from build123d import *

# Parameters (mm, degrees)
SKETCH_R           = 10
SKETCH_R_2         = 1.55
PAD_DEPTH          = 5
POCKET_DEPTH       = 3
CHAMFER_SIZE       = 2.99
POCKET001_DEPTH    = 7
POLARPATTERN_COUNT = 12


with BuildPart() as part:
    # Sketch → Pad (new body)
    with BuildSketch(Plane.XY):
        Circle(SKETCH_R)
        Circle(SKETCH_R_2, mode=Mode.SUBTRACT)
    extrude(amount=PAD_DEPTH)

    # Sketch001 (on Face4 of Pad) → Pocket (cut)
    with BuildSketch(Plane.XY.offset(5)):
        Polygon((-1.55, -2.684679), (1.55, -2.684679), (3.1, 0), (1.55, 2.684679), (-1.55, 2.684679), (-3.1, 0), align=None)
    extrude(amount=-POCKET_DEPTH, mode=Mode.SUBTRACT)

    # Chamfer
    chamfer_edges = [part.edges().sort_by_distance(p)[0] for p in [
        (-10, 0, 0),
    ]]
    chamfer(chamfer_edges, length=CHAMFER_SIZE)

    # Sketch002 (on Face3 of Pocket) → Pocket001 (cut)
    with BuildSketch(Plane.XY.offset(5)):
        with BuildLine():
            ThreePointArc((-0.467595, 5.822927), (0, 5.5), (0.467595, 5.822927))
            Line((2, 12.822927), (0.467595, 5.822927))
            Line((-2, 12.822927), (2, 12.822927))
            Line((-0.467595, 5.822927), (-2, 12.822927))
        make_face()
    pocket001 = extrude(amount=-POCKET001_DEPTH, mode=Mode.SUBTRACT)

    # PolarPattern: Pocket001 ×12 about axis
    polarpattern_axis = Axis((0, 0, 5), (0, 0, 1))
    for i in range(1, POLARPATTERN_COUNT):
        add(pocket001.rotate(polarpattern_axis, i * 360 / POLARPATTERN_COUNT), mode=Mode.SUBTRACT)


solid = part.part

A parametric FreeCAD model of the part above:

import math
import FreeCAD as App
import Part
import Sketcher
Q = App.Units.Quantity


def edges_at(feature, points):
    """Names of the edges that pass closest to the given points."""
    edges = feature.Shape.Edges
    near = lambda p: min(range(len(edges)), key=lambda i: edges[i].distToShape(Part.Vertex(*p))[0])
    return sorted({f"Edge{near(p) + 1}" for p in points})


def add_polygon(sketch, points):
    """Adds a closed chain of lines whose ends are joined by coincident constraints."""
    first, n = sketch.GeometryCount, len(points)
    for a, b in zip(points, points[1:] + points[:1]):
        sketch.addGeometry(Part.LineSegment(App.Vector(*a, 0), App.Vector(*b, 0)), False)
    for i in range(n):
        sketch.addConstraint(Sketcher.Constraint("Coincident", first + i, 2, first + (i + 1) % n, 1))

doc = App.newDocument("Part")
params = doc.addObject("Spreadsheet::Sheet", "Params")
for row, (alias, value) in enumerate([
    ("sketch1_diameter", "20 mm"),
    ("sketch1_diameter2", "3.1 mm"),
    ("pad1_length", "5 mm"),
    ("sketch2_width", "3.1 mm"),
    ("sketch2_length", "3.1 mm"),
    ("pocket1_length", "3 mm"),
    ("chamfer_size", "2.99 mm"),
    ("sketch3_radius", "0.5 mm"),
    ("sketch3_width", "4 mm"),
    ("pocket2_length", "7 mm"),
], start=1):
    params.set(f"A{row}", alias)
    params.set(f"B{row}", "=" + value)
    params.setAlias(f"B{row}", alias)

body = doc.addObject("PartDesign::Body", "Body")

# Sketch on XY plane
sketch1 = body.newObject("Sketcher::SketchObject", "Sketch")
sketch1.AttachmentSupport = (doc.getObject("XY_Plane"), [""])
sketch1.MapMode = "FlatFace"
sketch1.addGeometry([
    Part.Circle(App.Vector(0, 0, 0), App.Vector(0, 0, 1), 10),
    Part.Circle(App.Vector(0, 0, 0), App.Vector(0, 0, 1), 1.55),
], False)
sketch1.addConstraint([
    Sketcher.Constraint("Coincident", 0, 3, -1, 1),
    Sketcher.Constraint("Coincident", 1, 3, -1, 1),
    Sketcher.Constraint("Diameter", 0, Q("20 mm")),
    Sketcher.Constraint("Diameter", 1, Q("3.1 mm")),
])
sketch1.setExpression("Constraints[2]", "Params.sketch1_diameter")
sketch1.setExpression("Constraints[3]", "Params.sketch1_diameter2")
pad1 = body.newObject("PartDesign::Pad", "Pad")
pad1.Profile = sketch1
pad1.setExpression("Length", "Params.pad1_length")

# Sketch on XY plane
sketch2 = body.newObject("Sketcher::SketchObject", "Sketch001")
sketch2.AttachmentSupport = (doc.getObject("XY_Plane"), [""])
sketch2.MapMode = "FlatFace"
sketch2.AttachmentOffset = App.Placement(App.Vector(0, 0, 5), App.Rotation())
add_polygon(sketch2, [(-1.55, -2.684679), (1.55, -2.684679), (3.1, 0), (1.55, 2.684679), (-1.55, 2.684679), (-3.1, 0)])  # lines 0-5
sketch2.addConstraint([
    Sketcher.Constraint("Horizontal", 0),
    Sketcher.Constraint("Horizontal", 3),
    Sketcher.Constraint("Symmetric", 0, 2, 3, 2, -1, 1),
    Sketcher.Constraint("Symmetric", 1, 2, 4, 2, -1, 1),
    Sketcher.Constraint("PointOnObject", 1, 2, -1),
    Sketcher.Constraint("Parallel", 2, 5),
    Sketcher.Constraint("Vertical", 0, 2, 2, 2),
    Sketcher.Constraint("Angle", 1, Q("60.000002 deg")),
    Sketcher.Constraint("DistanceX", 0, 1, 0, 2, Q("3.1 mm")),
    Sketcher.Constraint("Distance", 1, Q("3.1 mm")),
])
sketch2.setExpression("Constraints[14]", "Params.sketch2_width")
sketch2.setExpression("Constraints[15]", "Params.sketch2_length")
pocket1 = body.newObject("PartDesign::Pocket", "Pocket")
pocket1.Profile = sketch2
pocket1.setExpression("Length", "Params.pocket1_length")
doc.recompute()

chamfer = body.newObject("PartDesign::Chamfer", "Chamfer")
chamfer.Base = (pocket1, edges_at(pocket1, [(-10, 0, 0)]))
chamfer.setExpression("Size", "Params.chamfer_size")

# Sketch on XY plane
sketch3 = body.newObject("Sketcher::SketchObject", "Sketch002")
sketch3.AttachmentSupport = (doc.getObject("XY_Plane"), [""])
sketch3.MapMode = "FlatFace"
sketch3.AttachmentOffset = App.Placement(App.Vector(0, 0, 5), App.Rotation())
sketch3.addGeometry([
    Part.ArcOfCircle(Part.Circle(App.Vector(0, 6, 0), App.Vector(0, 0, 1), 0.5), math.radians(-159.258895), math.radians(-20.741105)),
    Part.LineSegment(App.Vector(0.467595, 5.822927, 0), App.Vector(2, 12.822927, 0)),
    Part.LineSegment(App.Vector(2, 12.822927, 0), App.Vector(-2, 12.822927, 0)),
    Part.LineSegment(App.Vector(-2, 12.822927, 0), App.Vector(-0.467595, 5.822927, 0)),
], False)
sketch3.addConstraint([
    Sketcher.Constraint("Coincident", 0, 2, 1, 1),
    Sketcher.Constraint("Coincident", 1, 2, 2, 1),
    Sketcher.Constraint("Coincident", 2, 2, 3, 1),
    Sketcher.Constraint("Coincident", 3, 2, 0, 1),
    Sketcher.Constraint("Horizontal", 2),
    Sketcher.Constraint("Symmetric", 0, 2, 3, 2, -2),
    Sketcher.Constraint("Equal", 1, 3),
    Sketcher.Constraint("Radius", 0, Q("0.5 mm")),
    Sketcher.Constraint("DistanceX", 2, 2, 2, 1, Q("4 mm")),
    Sketcher.Constraint("DistanceY", -1, 1, 0, 3, Q("6 mm")),
    Sketcher.Constraint("DistanceY", 0, 2, 1, 2, Q("7 mm")),
    Sketcher.Constraint("Distance", 1, Q("7.16577 mm")),
])
sketch3.setExpression("Constraints[7]", "Params.sketch3_radius")
sketch3.setExpression("Constraints[8]", "Params.sketch3_width")
pocket2 = body.newObject("PartDesign::Pocket", "Pocket001")
pocket2.Profile = sketch3
pocket2.setExpression("Length", "Params.pocket2_length")
doc.recompute()

polarpattern = body.newObject("PartDesign::PolarPattern", "PolarPattern")
polarpattern.Originals = [pocket2]
polarpattern.Axis = (doc.getObject("Z_Axis"), [""])
polarpattern.Angle = 360
polarpattern.Occurrences = 12
body.Tip = polarpattern

doc.recompute()
